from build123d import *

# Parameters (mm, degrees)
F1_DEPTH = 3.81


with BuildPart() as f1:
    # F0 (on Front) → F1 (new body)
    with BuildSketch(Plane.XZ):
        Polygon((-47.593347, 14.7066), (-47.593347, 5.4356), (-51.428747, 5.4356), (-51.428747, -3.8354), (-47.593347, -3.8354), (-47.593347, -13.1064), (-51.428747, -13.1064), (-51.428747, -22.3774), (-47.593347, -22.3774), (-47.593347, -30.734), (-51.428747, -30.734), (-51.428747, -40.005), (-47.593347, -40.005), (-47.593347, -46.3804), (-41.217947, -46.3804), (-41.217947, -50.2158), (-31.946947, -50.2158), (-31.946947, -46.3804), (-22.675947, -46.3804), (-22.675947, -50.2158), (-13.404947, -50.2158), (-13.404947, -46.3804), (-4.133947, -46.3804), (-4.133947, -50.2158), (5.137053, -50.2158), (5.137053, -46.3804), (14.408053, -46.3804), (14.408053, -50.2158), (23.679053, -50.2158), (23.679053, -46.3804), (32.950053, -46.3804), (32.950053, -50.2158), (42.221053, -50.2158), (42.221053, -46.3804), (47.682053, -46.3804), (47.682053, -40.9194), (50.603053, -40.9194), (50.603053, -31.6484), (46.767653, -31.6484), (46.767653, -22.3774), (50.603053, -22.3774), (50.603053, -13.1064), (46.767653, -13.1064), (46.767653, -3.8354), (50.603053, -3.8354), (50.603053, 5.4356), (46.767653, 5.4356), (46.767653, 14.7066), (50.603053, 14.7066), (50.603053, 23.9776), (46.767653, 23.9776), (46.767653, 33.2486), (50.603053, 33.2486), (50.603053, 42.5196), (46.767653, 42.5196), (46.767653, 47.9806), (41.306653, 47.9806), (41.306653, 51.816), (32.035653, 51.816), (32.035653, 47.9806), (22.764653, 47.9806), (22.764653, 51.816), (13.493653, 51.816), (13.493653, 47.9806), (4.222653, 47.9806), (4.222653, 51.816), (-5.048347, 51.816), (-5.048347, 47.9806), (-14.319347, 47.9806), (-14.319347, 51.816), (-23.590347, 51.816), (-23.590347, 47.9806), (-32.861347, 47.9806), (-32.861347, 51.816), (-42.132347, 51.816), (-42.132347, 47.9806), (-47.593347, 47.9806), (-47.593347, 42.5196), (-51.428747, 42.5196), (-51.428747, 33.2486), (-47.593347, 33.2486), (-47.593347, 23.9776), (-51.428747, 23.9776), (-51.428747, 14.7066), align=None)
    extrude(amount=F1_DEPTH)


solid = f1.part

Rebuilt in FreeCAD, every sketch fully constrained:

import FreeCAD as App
import Part
import Sketcher
from FreeCAD import Vector
Q = App.Units.Quantity


def add_polygon(sketch, points):
    """Adds a closed chain of lines whose ends are joined by coincident constraints."""
    first, n = sketch.GeometryCount, len(points)
    for a, b in zip(points, points[1:] + points[:1]):
        sketch.addGeometry(Part.LineSegment(App.Vector(*a, 0), App.Vector(*b, 0)), False)
    for i in range(n):
        sketch.addConstraint(Sketcher.Constraint("Coincident", first + i, 2, first + (i + 1) % n, 1))

doc = App.newDocument("Part")
body = doc.addObject("PartDesign::Body", "Body")

# Sketch on XZ plane
sketch1 = doc.addObject("Sketcher::SketchObject", "Sketch")
body.addObject(sketch1)
sketch1.AttachmentSupport = (doc.XZ_Plane, [""])
sketch1.MapMode = "FlatFace"
add_polygon(sketch1, [(-47.6, 14.7), (-47.6, 5.4), (-51.4, 5.4), (-51.4, -3.8), (-47.6, -3.8), (-47.6, -13.1), (-51.4, -13.1), (-51.4, -22.4), (-47.6, -22.4), (-47.6, -30.7), (-51.4, -30.7), (-51.4, -40), (-47.6, -40), (-47.6, -46.4), (-41.2, -46.4), (-41.2, -50.2), (-31.9, -50.2), (-31.9, -46.4), (-22.7, -46.4), (-22.7, -50.2), (-13.4, -50.2), (-13.4, -46.4), (-4.1, -46.4), (-4.1, -50.2), (5.1, -50.2), (5.1, -46.4), (14.4, -46.4), (14.4, -50.2), (23.7, -50.2), (23.7, -46.4), (33, -46.4), (33, -50.2), (42.2, -50.2), (42.2, -46.4), (47.7, -46.4), (47.7, -40.9), (50.6, -40.9), (50.6, -31.6), (46.8, -31.6), (46.8, -22.4), (50.6, -22.4), (50.6, -13.1), (46.8, -13.1), (46.8, -3.8), (50.6, -3.8), (50.6, 5.4), (46.8, 5.4), (46.8, 14.7), (50.6, 14.7), (50.6, 24), (46.8, 24), (46.8, 33.2), (50.6, 33.2), (50.6, 42.5), (46.8, 42.5), (46.8, 48), (41.3, 48), (41.3, 51.8), (32, 51.8), (32, 48), (22.8, 48), (22.8, 51.8), (13.5, 51.8), (13.5, 48), (4.2, 48), (4.2, 51.8), (-5, 51.8), (-5, 48), (-14.3, 48), (-14.3, 51.8), (-23.6, 51.8), (-23.6, 48), (-32.9, 48), (-32.9, 51.8), (-42.1, 51.8), (-42.1, 48), (-47.6, 48), (-47.6, 42.5), (-51.4, 42.5), (-51.4, 33.2), (-47.6, 33.2), (-47.6, 24), (-51.4, 24), (-51.4, 14.7)])  # lines 0-83
sketch1.addConstraint(Sketcher.Constraint("Vertical", 0))
sketch1.addConstraint(Sketcher.Constraint("Horizontal", 1))
sketch1.addConstraint(Sketcher.Constraint("Vertical", 2))
sketch1.addConstraint(Sketcher.Constraint("Horizontal", 3))
sketch1.addConstraint(Sketcher.Constraint("Vertical", 4))
sketch1.addConstraint(Sketcher.Constraint("Horizontal", 5))
sketch1.addConstraint(Sketcher.Constraint("Vertical", 6))
sketch1.addConstraint(Sketcher.Constraint("Horizontal", 7))
sketch1.addConstraint(Sketcher.Constraint("Vertical", 8))
sketch1.addConstraint(Sketcher.Constraint("Horizontal", 9))
sketch1.addConstraint(Sketcher.Constraint("Vertical", 10))
sketch1.addConstraint(Sketcher.Constraint("Horizontal", 11))
sketch1.addConstraint(Sketcher.Constraint("Vertical", 12))
sketch1.addConstraint(Sketcher.Constraint("Horizontal", 13))
sketch1.addConstraint(Sketcher.Constraint("Vertical", 14))
sketch1.addConstraint(Sketcher.Constraint("Horizontal", 15))
sketch1.addConstraint(Sketcher.Constraint("Vertical", 16))
sketch1.addConstraint(Sketcher.Constraint("Horizontal", 17))
sketch1.addConstraint(Sketcher.Constraint("Vertical", 18))
sketch1.addConstraint(Sketcher.Constraint("Horizontal", 19))
sketch1.addConstraint(Sketcher.Constraint("Vertical", 20))
sketch1.addConstraint(Sketcher.Constraint("Horizontal", 21))
sketch1.addConstraint(Sketcher.Constraint("Vertical", 22))
sketch1.addConstraint(Sketcher.Constraint("Horizontal", 23))
sketch1.addConstraint(Sketcher.Constraint("Vertical", 24))
sketch1.addConstraint(Sketcher.Constraint("Horizontal", 25))
sketch1.addConstraint(Sketcher.Constraint("Vertical", 26))
sketch1.addConstraint(Sketcher.Constraint("Horizontal", 27))
sketch1.addConstraint(Sketcher.Constraint("Vertical", 28))
sketch1.addConstraint(Sketcher.Constraint("Horizontal", 29))
sketch1.addConstraint(Sketcher.Constraint("Vertical", 30))
sketch1.addConstraint(Sketcher.Constraint("Horizontal", 31))
sketch1.addConstraint(Sketcher.Constraint("Vertical", 32))
sketch1.addConstraint(Sketcher.Constraint("Horizontal", 33))
sketch1.addConstraint(Sketcher.Constraint("Vertical", 34))
sketch1.addConstraint(Sketcher.Constraint("Horizontal", 35))
sketch1.addConstraint(Sketcher.Constraint("Vertical", 36))
sketch1.addConstraint(Sketcher.Constraint("Horizontal", 37))
sketch1.addConstraint(Sketcher.Constraint("Vertical", 38))
sketch1.addConstraint(Sketcher.Constraint("Horizontal", 39))
sketch1.addConstraint(Sketcher.Constraint("Vertical", 40))
sketch1.addConstraint(Sketcher.Constraint("Horizontal", 41))
sketch1.addConstraint(Sketcher.Constraint("Vertical", 42))
sketch1.addConstraint(Sketcher.Constraint("Horizontal", 43))
sketch1.addConstraint(Sketcher.Constraint("Vertical", 44))
sketch1.addConstraint(Sketcher.Constraint("Horizontal", 45))
sketch1.addConstraint(Sketcher.Constraint("Vertical", 46))
sketch1.addConstraint(Sketcher.Constraint("Horizontal", 47))
sketch1.addConstraint(Sketcher.Constraint("Vertical", 48))
sketch1.addConstraint(Sketcher.Constraint("Horizontal", 49))
sketch1.addConstraint(Sketcher.Constraint("Vertical", 50))
sketch1.addConstraint(Sketcher.Constraint("Horizontal", 51))
sketch1.addConstraint(Sketcher.Constraint("Vertical", 52))
sketch1.addConstraint(Sketcher.Constraint("Horizontal", 53))
sketch1.addConstraint(Sketcher.Constraint("Vertical", 54))
sketch1.addConstraint(Sketcher.Constraint("Horizontal", 55))
sketch1.addConstraint(Sketcher.Constraint("Vertical", 56))
sketch1.addConstraint(Sketcher.Constraint("Horizontal", 57))
sketch1.addConstraint(Sketcher.Constraint("Vertical", 58))
sketch1.addConstraint(Sketcher.Constraint("Horizontal", 59))
sketch1.addConstraint(Sketcher.Constraint("Vertical", 60))
sketch1.addConstraint(Sketcher.Constraint("Horizontal", 61))
sketch1.addConstraint(Sketcher.Constraint("Vertical", 62))
sketch1.addConstraint(Sketcher.Constraint("Horizontal", 63))
sketch1.addConstraint(Sketcher.Constraint("Vertical", 64))
sketch1.addConstraint(Sketcher.Constraint("Horizontal", 65))
sketch1.addConstraint(Sketcher.Constraint("Vertical", 66))
sketch1.addConstraint(Sketcher.Constraint("Horizontal", 67))
sketch1.addConstraint(Sketcher.Constraint("Vertical", 68))
sketch1.addConstraint(Sketcher.Constraint("Horizontal", 69))
sketch1.addConstraint(Sketcher.Constraint("Vertical", 70))
sketch1.addConstraint(Sketcher.Constraint("Horizontal", 71))
sketch1.addConstraint(Sketcher.Constraint("Vertical", 72))
sketch1.addConstraint(Sketcher.Constraint("Horizontal", 73))
sketch1.addConstraint(Sketcher.Constraint("Vertical", 74))
sketch1.addConstraint(Sketcher.Constraint("Horizontal", 75))
sketch1.addConstraint(Sketcher.Constraint("Vertical", 76))
sketch1.addConstraint(Sketcher.Constraint("Horizontal", 77))
sketch1.addConstraint(Sketcher.Constraint("Vertical", 78))
sketch1.addConstraint(Sketcher.Constraint("Horizontal", 79))
sketch1.addConstraint(Sketcher.Constraint("Vertical", 80))
sketch1.addConstraint(Sketcher.Constraint("Horizontal", 81))
sketch1.addConstraint(Sketcher.Constraint("Vertical", 82))
sketch1.addConstraint(Sketcher.Constraint("Horizontal", 83))
sketch1.addConstraint(Sketcher.Constraint("Horizontal", 13, 2, 16, 2))
sketch1.addConstraint(Sketcher.Constraint("Horizontal", 15, 2, 18, 2))
sketch1.addConstraint(Sketcher.Constraint("Horizontal", 17, 2, 20, 2))
sketch1.addConstraint(Sketcher.Constraint("Horizontal", 19, 2, 22, 2))
sketch1.addConstraint(Sketcher.Constraint("Horizontal", 21, 2, 24, 2))
sketch1.addConstraint(Sketcher.Constraint("Horizontal", 23, 2, 26, 2))
sketch1.addConstraint(Sketcher.Constraint("Horizontal", 25, 2, 28, 2))
sketch1.addConstraint(Sketcher.Constraint("Horizontal", 27, 2, 30, 2))
sketch1.addConstraint(Sketcher.Constraint("Horizontal", 29, 2, 32, 2))
sketch1.addConstraint(Sketcher.Constraint("Horizontal", 7, 2, 38, 2))
sketch1.addConstraint(Sketcher.Constraint("Horizontal", 5, 2, 40, 2))
sketch1.addConstraint(Sketcher.Constraint("Horizontal", 3, 2, 42, 2))
sketch1.addConstraint(Sketcher.Constraint("Horizontal", 1, 2, 44, 2))
sketch1.addConstraint(Sketcher.Constraint("Horizontal", 55, 2, 58, 2))
sketch1.addConstraint(Sketcher.Constraint("Horizontal", 57, 2, 60, 2))
sketch1.addConstraint(Sketcher.Constraint("Horizontal", 59, 2, 62, 2))
sketch1.addConstraint(Sketcher.Constraint("Horizontal", 61, 2, 64, 2))
sketch1.addConstraint(Sketcher.Constraint("Horizontal", 63, 2, 66, 2))
sketch1.addConstraint(Sketcher.Constraint("Horizontal", 65, 2, 68, 2))
sketch1.addConstraint(Sketcher.Constraint("Horizontal", 67, 2, 70, 2))
sketch1.addConstraint(Sketcher.Constraint("Horizontal", 69, 2, 72, 2))
sketch1.addConstraint(Sketcher.Constraint("Horizontal", 71, 2, 74, 2))
sketch1.addConstraint(Sketcher.Constraint("Horizontal", 53, 2, 76, 2))
sketch1.addConstraint(Sketcher.Constraint("Horizontal", 51, 2, 78, 2))
sketch1.addConstraint(Sketcher.Constraint("Horizontal", 49, 2, 80, 2))
sketch1.addConstraint(Sketcher.Constraint("Horizontal", 47, 2, 82, 2))
sketch1.addConstraint(Sketcher.Constraint("Vertical", 0, 2, 3, 2))
sketch1.addConstraint(Sketcher.Constraint("Vertical", 2, 2, 5, 2))
sketch1.addConstraint(Sketcher.Constraint("Vertical", 4, 2, 7, 2))
sketch1.addConstraint(Sketcher.Constraint("Vertical", 6, 2, 9, 2))
sketch1.addConstraint(Sketcher.Constraint("Vertical", 8, 2, 11, 2))
sketch1.addConstraint(Sketcher.Constraint("Vertical", 36, 2, 39, 2))
sketch1.addConstraint(Sketcher.Constraint("Vertical", 38, 2, 41, 2))
sketch1.addConstraint(Sketcher.Constraint("Vertical", 40, 2, 43, 2))
sketch1.addConstraint(Sketcher.Constraint("Vertical", 42, 2, 45, 2))
sketch1.addConstraint(Sketcher.Constraint("Vertical", 44, 2, 47, 2))
sketch1.addConstraint(Sketcher.Constraint("Vertical", 46, 2, 49, 2))
sketch1.addConstraint(Sketcher.Constraint("Vertical", 48, 2, 51, 2))
sketch1.addConstraint(Sketcher.Constraint("Vertical", 50, 2, 53, 2))
sketch1.addConstraint(Sketcher.Constraint("Vertical", 12, 2, 75, 2))
sketch1.addConstraint(Sketcher.Constraint("Vertical", 10, 2, 77, 2))
sketch1.addConstraint(Sketcher.Constraint("Vertical", 76, 2, 79, 2))
sketch1.addConstraint(Sketcher.Constraint("Vertical", 78, 2, 81, 2))
sketch1.addConstraint(Sketcher.Constraint("Equal", 15, 17))
sketch1.addConstraint(Sketcher.Constraint("Equal", 17, 19))
sketch1.addConstraint(Sketcher.Constraint("Equal", 19, 21))
sketch1.addConstraint(Sketcher.Constraint("Equal", 21, 23))
sketch1.addConstraint(Sketcher.Constraint("Equal", 23, 25))
sketch1.addConstraint(Sketcher.Constraint("Equal", 25, 27))
sketch1.addConstraint(Sketcher.Constraint("Equal", 27, 29))
sketch1.addConstraint(Sketcher.Constraint("Equal", 29, 31))
sketch1.addConstraint(Sketcher.Constraint("Equal", 11, 37))
sketch1.addConstraint(Sketcher.Constraint("Equal", 33, 55))
sketch1.addConstraint(Sketcher.Constraint("Equal", 31, 57))
sketch1.addConstraint(Sketcher.Constraint("Equal", 57, 59))
sketch1.addConstraint(Sketcher.Constraint("Equal", 59, 61))
sketch1.addConstraint(Sketcher.Constraint("Equal", 61, 63))
sketch1.addConstraint(Sketcher.Constraint("Equal", 63, 65))
sketch1.addConstraint(Sketcher.Constraint("Equal", 65, 67))
sketch1.addConstraint(Sketcher.Constraint("Equal", 67, 69))
sketch1.addConstraint(Sketcher.Constraint("Equal", 69, 71))
sketch1.addConstraint(Sketcher.Constraint("Equal", 71, 73))
sketch1.addConstraint(Sketcher.Constraint("Equal", 55, 75))
sketch1.addConstraint(Sketcher.Constraint("Equal", 73, 0))
sketch1.addConstraint(Sketcher.Constraint("Equal", 0, 2))
sketch1.addConstraint(Sketcher.Constraint("Equal", 2, 4))
sketch1.addConstraint(Sketcher.Constraint("Equal", 4, 6))
sketch1.addConstraint(Sketcher.Constraint("Equal", 6, 10))
sketch1.addConstraint(Sketcher.Constraint("Equal", 13, 12))
sketch1.addConstraint(Sketcher.Constraint("Equal", 83, 14))
sketch1.addConstraint(Sketcher.Constraint("Equal", 75, 34))
sketch1.addConstraint(Sketcher.Constraint("Equal", 10, 36))
sketch1.addConstraint(Sketcher.Constraint("Equal", 36, 38))
sketch1.addConstraint(Sketcher.Constraint("Equal", 46, 48))
sketch1.addConstraint(Sketcher.Constraint("Equal", 48, 50))
sketch1.addConstraint(Sketcher.Constraint("Equal", 50, 52))
sketch1.addConstraint(Sketcher.Constraint("Equal", 34, 54))
sketch1.addConstraint(Sketcher.Constraint("Equal", 32, 56))
sketch1.addConstraint(Sketcher.Constraint("DistanceX", 1, 2, 1, 1, Q("0.151 in")))
sketch1.addConstraint(Sketcher.Constraint("DistanceX", 13, 1, 13, 2, Q("0.251 in")))
sketch1.addConstraint(Sketcher.Constraint("DistanceX", 15, 1, 15, 2, Q("0.365 in")))
sketch1.addConstraint(Sketcher.Constraint("DistanceX", 33, 1, 33, 2, Q("0.215 in")))
sketch1.addConstraint(Sketcher.Constraint("DistanceY", 8, 2, -1, 1, Q("1.21 in")))
sketch1.addConstraint(Sketcher.Constraint("DistanceX", 0, 2, -1, 1, 47.593347))
pad1 = doc.addObject("PartDesign::Pad", "Pad")
body.addObject(pad1)
pad1.Profile = sketch1
pad1.Length = Q("0.15 in")

doc.recompute()
